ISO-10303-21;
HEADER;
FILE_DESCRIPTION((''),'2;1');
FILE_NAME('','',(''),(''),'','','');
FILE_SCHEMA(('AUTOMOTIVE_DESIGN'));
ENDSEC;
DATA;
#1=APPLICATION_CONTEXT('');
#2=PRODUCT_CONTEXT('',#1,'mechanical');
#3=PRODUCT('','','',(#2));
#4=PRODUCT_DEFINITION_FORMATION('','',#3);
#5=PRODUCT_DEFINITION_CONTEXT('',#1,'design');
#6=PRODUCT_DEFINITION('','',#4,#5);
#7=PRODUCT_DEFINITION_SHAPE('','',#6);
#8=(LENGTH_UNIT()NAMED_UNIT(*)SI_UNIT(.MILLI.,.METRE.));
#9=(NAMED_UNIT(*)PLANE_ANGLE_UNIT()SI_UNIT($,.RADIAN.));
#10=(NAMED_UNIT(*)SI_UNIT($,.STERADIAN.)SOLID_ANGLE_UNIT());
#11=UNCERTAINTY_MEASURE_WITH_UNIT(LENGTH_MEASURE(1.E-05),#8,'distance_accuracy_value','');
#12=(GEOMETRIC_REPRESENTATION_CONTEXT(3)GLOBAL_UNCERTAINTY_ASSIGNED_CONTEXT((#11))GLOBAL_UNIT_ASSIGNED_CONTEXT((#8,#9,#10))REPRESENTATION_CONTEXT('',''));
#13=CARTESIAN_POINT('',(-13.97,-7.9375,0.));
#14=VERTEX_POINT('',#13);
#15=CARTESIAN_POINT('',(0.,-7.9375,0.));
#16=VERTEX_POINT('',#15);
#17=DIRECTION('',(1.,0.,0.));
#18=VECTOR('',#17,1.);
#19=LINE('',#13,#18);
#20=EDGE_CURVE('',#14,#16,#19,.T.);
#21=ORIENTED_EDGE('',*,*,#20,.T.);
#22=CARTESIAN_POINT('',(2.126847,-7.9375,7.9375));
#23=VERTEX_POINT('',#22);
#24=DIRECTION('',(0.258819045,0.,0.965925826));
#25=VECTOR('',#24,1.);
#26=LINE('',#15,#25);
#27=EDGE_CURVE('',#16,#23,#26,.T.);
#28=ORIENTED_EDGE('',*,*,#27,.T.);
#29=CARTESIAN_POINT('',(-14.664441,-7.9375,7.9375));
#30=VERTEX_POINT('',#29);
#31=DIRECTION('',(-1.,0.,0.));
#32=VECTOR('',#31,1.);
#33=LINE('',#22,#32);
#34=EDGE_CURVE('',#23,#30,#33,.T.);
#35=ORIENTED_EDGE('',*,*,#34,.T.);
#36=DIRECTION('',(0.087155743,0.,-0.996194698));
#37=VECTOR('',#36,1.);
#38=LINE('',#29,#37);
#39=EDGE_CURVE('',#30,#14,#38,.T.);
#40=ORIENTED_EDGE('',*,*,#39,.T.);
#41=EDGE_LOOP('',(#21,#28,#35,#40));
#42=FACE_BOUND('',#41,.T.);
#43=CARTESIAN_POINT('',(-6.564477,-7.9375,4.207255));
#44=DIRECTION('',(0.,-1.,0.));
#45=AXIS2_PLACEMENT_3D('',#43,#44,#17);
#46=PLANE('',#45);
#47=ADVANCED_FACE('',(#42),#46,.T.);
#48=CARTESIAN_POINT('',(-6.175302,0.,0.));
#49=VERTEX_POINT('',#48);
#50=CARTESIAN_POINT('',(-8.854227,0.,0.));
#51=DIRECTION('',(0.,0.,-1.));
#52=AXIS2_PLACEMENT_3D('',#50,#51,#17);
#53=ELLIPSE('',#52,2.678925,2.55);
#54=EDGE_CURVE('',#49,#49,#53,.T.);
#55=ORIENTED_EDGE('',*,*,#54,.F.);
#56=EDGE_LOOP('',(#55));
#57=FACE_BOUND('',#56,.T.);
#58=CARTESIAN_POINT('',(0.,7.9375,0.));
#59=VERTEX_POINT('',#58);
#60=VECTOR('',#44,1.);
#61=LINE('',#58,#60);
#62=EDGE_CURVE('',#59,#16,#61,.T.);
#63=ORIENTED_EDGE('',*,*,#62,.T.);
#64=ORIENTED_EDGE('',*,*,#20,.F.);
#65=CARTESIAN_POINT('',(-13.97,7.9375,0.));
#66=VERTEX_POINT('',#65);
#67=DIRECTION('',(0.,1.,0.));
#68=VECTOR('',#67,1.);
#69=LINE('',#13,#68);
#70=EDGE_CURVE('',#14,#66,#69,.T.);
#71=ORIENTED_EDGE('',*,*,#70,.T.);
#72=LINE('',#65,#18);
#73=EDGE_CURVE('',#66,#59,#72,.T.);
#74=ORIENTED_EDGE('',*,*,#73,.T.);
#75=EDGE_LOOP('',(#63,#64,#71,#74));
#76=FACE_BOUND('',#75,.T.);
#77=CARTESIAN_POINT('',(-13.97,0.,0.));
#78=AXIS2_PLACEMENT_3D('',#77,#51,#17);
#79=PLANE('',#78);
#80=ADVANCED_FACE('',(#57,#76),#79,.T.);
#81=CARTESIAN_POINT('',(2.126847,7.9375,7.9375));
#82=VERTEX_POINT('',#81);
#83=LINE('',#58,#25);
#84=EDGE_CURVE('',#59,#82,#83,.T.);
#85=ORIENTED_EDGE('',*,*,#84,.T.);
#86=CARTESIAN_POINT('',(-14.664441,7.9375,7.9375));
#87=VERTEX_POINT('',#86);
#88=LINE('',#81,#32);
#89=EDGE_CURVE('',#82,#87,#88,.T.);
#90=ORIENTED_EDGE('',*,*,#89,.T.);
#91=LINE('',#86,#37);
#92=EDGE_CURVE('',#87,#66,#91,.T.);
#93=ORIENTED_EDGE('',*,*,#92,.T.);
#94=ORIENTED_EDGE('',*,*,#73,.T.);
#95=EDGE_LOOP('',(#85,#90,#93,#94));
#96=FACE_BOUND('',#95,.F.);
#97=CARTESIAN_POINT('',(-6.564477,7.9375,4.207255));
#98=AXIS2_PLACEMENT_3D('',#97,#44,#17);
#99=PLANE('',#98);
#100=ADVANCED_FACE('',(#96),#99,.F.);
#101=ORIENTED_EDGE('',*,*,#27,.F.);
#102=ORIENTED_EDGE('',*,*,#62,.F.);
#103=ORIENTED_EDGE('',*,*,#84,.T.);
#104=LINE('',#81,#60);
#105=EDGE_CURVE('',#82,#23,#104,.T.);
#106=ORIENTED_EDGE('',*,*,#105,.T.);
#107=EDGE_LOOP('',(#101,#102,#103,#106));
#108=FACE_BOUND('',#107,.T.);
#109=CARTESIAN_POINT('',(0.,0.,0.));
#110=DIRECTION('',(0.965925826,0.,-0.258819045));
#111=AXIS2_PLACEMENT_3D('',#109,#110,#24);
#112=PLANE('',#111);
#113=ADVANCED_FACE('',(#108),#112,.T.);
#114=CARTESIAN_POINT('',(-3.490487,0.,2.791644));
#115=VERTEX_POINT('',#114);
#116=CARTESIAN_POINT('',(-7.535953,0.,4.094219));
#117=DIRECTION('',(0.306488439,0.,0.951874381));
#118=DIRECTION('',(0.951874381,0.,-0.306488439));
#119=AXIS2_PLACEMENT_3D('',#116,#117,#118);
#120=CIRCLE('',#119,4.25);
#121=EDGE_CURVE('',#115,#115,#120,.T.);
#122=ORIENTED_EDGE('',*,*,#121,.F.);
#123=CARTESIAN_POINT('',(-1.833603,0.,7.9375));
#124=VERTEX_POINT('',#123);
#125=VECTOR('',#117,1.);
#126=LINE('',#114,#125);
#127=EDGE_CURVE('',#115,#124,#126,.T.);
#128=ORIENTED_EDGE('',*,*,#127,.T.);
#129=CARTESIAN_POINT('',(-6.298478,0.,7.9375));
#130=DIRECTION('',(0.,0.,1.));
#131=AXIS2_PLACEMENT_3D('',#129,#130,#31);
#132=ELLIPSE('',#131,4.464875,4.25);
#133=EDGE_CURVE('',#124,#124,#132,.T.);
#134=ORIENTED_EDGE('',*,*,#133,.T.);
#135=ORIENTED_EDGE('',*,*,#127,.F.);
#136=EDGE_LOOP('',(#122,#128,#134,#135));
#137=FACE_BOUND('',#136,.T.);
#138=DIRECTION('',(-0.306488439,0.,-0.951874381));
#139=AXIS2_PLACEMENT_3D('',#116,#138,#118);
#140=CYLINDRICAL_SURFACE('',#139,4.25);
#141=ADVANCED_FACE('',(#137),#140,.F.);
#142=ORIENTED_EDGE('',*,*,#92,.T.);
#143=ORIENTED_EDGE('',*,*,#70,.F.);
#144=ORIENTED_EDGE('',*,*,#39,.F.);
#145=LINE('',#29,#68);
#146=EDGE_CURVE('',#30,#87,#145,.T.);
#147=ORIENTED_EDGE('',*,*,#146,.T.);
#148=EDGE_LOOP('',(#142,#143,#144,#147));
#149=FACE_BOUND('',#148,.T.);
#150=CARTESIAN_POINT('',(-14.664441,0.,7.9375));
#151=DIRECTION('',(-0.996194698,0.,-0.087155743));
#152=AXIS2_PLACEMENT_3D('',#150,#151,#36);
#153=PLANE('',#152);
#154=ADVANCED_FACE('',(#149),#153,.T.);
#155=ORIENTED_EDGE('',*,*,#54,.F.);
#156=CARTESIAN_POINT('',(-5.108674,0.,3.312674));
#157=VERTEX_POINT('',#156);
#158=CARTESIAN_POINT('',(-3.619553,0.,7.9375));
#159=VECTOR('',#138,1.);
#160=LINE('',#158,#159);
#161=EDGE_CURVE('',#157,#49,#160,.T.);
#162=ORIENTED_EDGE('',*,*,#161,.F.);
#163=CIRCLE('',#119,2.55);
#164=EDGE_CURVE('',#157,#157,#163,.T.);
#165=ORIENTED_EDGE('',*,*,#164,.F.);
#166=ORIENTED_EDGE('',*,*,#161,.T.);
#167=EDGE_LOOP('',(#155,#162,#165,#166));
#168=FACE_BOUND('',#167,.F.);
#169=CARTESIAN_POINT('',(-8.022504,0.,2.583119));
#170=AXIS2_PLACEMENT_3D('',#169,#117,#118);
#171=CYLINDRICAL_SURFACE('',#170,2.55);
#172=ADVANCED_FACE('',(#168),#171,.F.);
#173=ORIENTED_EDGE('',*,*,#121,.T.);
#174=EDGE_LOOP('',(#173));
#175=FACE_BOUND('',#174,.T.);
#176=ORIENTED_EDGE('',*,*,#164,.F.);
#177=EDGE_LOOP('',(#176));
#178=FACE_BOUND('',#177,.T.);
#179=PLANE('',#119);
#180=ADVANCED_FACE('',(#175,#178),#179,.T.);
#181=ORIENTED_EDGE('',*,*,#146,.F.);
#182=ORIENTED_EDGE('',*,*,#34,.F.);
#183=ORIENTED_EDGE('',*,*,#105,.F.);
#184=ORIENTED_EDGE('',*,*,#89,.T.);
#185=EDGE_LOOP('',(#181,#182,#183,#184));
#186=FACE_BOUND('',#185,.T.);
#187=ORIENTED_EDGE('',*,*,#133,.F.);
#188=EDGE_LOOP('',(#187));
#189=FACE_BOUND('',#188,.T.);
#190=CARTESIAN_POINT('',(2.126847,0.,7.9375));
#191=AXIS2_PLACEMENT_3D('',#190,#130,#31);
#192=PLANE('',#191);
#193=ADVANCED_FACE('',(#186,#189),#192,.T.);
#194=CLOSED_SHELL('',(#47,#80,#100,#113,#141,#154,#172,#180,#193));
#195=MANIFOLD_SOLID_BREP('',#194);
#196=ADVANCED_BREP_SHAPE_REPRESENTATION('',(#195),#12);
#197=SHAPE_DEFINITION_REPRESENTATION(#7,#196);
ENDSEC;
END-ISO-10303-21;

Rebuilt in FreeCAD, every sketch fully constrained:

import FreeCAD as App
import Part
import Sketcher
Q = App.Units.Quantity


def add_polygon(sketch, points):
    """Adds a closed chain of lines whose ends are joined by coincident constraints."""
    first, n = sketch.GeometryCount, len(points)
    for a, b in zip(points, points[1:] + points[:1]):
        sketch.addGeometry(Part.LineSegment(App.Vector(*a, 0), App.Vector(*b, 0)), False)
    for i in range(n):
        sketch.addConstraint(Sketcher.Constraint("Coincident", first + i, 2, first + (i + 1) % n, 1))

doc = App.newDocument("Part")
params = doc.addObject("Spreadsheet::Sheet", "Params")
for row, (alias, value) in enumerate([
    ("sketch1_width", "0.55 in"),
    ("pad1_length", "0.3125 in"),
    ("pad1_length2", "0.3125 in"),
    ("pocket2_length", "0.9375 in"),
], start=1):
    params.set(f"A{row}", alias)
    params.set(f"B{row}", "=" + value)
    params.setAlias(f"B{row}", alias)

body = doc.addObject("PartDesign::Body", "Body")

sketch1 = body.newObject("Sketcher::SketchObject", "Sketch")
sketch1.AttachmentSupport = (doc.getObject("XZ_Plane"), [""])
sketch1.MapMode = "FlatFace"
add_polygon(sketch1, [(-14, 0), (0, 0), (2, 8), (-15, 8)])
sketch1.addConstraint([
    Sketcher.Constraint("Horizontal", 0),
    Sketcher.Constraint("Horizontal", 2),
    Sketcher.Constraint("Coincident", 0, 2, -1, 1),
    Sketcher.Constraint("Angle", 1, Q("75 deg")),
    Sketcher.Constraint("Angle", 3, Q("-85 deg")),
    Sketcher.Constraint("DistanceX", 0, 1, 0, 2, Q("0.55 in")),
    Sketcher.Constraint("DistanceY", -1, 1, 1, 2, Q("0.3125 in")),
])
sketch1.setExpression("Constraints[9]", "Params.sketch1_width")
pad1 = body.newObject("PartDesign::Pad", "Pad")
pad1.Profile = sketch1
pad1.Type = "TwoLengths"
pad1.setExpression("Length", "Params.pad1_length")
pad1.setExpression("Length2", "Params.pad1_length2")

sketch2 = body.newObject("Sketcher::SketchObject", "Sketch001")
sketch2.Placement = App.Placement(App.Vector(0, 0, 0), App.Rotation(App.Vector(0.951874381, 0, -0.306488439), App.Vector(0, 1, 0), App.Vector(0.306488439, 0, 0.951874381), "ZXY"))
sketch2.addGeometry(Part.Circle(App.Vector(-8.4, 0, 0), App.Vector(0, 0, 1), 2.5), False)
sketch2.addConstraint([
    Sketcher.Constraint("PointOnObject", 0, 3, -1),
    Sketcher.Constraint("Diameter", 0, 5.1),
    Sketcher.Constraint("DistanceX", 0, 3, -1, 1, 8.428112),
])
pocket1 = body.newObject("PartDesign::Pocket", "Pocket")
pocket1.Profile = sketch2
pocket1.Type = "ThroughAll"
pocket1.Midplane = True

sketch3 = body.newObject("Sketcher::SketchObject", "Sketch002")
sketch3.Placement = App.Placement(App.Vector(0.48655, 0, 1.511101), App.Rotation(App.Vector(0.951874381, 0, -0.306488439), App.Vector(0, 1, 0), App.Vector(0.306488439, 0, 0.951874381), "ZXY"))
sketch3.addGeometry([
    Part.Circle(App.Vector(-8.4, 0, 0), App.Vector(0, 0, 1), 4.2),
    Part.Circle(App.Vector(-8.4, 0, 0), App.Vector(0, 0, 1), 2.5),
], False)
sketch3.addConstraint([
    Sketcher.Constraint("Coincident", 1, 3, 0, 3),
    Sketcher.Constraint("PointOnObject", 0, 3, -1),
    Sketcher.Constraint("Diameter", 0, 8.5),
    Sketcher.Constraint("Diameter", 1, 5.1),
    Sketcher.Constraint("DistanceX", 0, 3, -1, 1, 8.428112),
])
pocket2 = body.newObject("PartDesign::Pocket", "Pocket001")
pocket2.Profile = sketch3
pocket2.setExpression("Length", "Params.pocket2_length")
pocket2.Reversed = True

doc.recompute()
